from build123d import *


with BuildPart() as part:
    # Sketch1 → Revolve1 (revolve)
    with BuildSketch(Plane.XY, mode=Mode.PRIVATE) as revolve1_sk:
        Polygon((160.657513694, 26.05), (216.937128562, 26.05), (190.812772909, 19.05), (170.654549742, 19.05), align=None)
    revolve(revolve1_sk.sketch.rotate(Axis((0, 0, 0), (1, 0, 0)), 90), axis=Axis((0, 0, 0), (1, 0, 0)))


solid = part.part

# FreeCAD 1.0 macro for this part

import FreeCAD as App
import Part
import Sketcher

V = App.Vector
Q = App.Units.Quantity


def add_polygon(sketch, points):
    """Adds a closed chain of lines whose ends are joined by coincident constraints."""
    first, n = sketch.GeometryCount, len(points)
    for a, b in zip(points, points[1:] + points[:1]):
        sketch.addGeometry(Part.LineSegment(App.Vector(*a, 0), App.Vector(*b, 0)), False)
    for i in range(n):
        sketch.addConstraint(Sketcher.Constraint("Coincident", first + i, 2, first + (i + 1) % n, 1))

doc = App.newDocument("Part")
body = doc.addObject("PartDesign::Body", "Body")

# Sketch on XY plane
sketch1 = doc.addObject("Sketcher::SketchObject", "Sketch")
body.addObject(sketch1)
sketch1.AttachmentSupport = (doc.XY_Plane, [""])
sketch1.MapMode = "FlatFace"
add_polygon(sketch1, [(216.937129, 26.05), (160.657514, 26.05), (170.65455, 19.05), (190.812773, 19.05)])  # lines 0-3
sketch1.addConstraint(Sketcher.Constraint("Horizontal", 0))
sketch1.addConstraint(Sketcher.Constraint("Horizontal", 2))
sketch1.addConstraint(Sketcher.Constraint("Angle", 1, Q("-35 deg")))
sketch1.addConstraint(Sketcher.Constraint("Angle", 3, Q("15 deg")))
sketch1.addConstraint(Sketcher.Constraint("DistanceY", 1, 2, 0, 2, Q("7 mm")))
sketch1.addConstraint(Sketcher.Constraint("DistanceY", -1, 1, 0, 2, Q("26.05 mm")))
sketch1.addConstraint(Sketcher.Constraint("DistanceX", 0, 2, 0, 1, Q("56.279615 mm")))
sketch1.addConstraint(Sketcher.Constraint("DistanceX", -1, 1, 1, 2, Q("170.65455 mm")))
revolution = doc.addObject("PartDesign::Revolution", "Revolution")
body.addObject(revolution)
revolution.Profile = sketch1
revolution.ReferenceAxis = (sketch1, ["H_Axis"])
revolution.Angle = 360

doc.recompute()
